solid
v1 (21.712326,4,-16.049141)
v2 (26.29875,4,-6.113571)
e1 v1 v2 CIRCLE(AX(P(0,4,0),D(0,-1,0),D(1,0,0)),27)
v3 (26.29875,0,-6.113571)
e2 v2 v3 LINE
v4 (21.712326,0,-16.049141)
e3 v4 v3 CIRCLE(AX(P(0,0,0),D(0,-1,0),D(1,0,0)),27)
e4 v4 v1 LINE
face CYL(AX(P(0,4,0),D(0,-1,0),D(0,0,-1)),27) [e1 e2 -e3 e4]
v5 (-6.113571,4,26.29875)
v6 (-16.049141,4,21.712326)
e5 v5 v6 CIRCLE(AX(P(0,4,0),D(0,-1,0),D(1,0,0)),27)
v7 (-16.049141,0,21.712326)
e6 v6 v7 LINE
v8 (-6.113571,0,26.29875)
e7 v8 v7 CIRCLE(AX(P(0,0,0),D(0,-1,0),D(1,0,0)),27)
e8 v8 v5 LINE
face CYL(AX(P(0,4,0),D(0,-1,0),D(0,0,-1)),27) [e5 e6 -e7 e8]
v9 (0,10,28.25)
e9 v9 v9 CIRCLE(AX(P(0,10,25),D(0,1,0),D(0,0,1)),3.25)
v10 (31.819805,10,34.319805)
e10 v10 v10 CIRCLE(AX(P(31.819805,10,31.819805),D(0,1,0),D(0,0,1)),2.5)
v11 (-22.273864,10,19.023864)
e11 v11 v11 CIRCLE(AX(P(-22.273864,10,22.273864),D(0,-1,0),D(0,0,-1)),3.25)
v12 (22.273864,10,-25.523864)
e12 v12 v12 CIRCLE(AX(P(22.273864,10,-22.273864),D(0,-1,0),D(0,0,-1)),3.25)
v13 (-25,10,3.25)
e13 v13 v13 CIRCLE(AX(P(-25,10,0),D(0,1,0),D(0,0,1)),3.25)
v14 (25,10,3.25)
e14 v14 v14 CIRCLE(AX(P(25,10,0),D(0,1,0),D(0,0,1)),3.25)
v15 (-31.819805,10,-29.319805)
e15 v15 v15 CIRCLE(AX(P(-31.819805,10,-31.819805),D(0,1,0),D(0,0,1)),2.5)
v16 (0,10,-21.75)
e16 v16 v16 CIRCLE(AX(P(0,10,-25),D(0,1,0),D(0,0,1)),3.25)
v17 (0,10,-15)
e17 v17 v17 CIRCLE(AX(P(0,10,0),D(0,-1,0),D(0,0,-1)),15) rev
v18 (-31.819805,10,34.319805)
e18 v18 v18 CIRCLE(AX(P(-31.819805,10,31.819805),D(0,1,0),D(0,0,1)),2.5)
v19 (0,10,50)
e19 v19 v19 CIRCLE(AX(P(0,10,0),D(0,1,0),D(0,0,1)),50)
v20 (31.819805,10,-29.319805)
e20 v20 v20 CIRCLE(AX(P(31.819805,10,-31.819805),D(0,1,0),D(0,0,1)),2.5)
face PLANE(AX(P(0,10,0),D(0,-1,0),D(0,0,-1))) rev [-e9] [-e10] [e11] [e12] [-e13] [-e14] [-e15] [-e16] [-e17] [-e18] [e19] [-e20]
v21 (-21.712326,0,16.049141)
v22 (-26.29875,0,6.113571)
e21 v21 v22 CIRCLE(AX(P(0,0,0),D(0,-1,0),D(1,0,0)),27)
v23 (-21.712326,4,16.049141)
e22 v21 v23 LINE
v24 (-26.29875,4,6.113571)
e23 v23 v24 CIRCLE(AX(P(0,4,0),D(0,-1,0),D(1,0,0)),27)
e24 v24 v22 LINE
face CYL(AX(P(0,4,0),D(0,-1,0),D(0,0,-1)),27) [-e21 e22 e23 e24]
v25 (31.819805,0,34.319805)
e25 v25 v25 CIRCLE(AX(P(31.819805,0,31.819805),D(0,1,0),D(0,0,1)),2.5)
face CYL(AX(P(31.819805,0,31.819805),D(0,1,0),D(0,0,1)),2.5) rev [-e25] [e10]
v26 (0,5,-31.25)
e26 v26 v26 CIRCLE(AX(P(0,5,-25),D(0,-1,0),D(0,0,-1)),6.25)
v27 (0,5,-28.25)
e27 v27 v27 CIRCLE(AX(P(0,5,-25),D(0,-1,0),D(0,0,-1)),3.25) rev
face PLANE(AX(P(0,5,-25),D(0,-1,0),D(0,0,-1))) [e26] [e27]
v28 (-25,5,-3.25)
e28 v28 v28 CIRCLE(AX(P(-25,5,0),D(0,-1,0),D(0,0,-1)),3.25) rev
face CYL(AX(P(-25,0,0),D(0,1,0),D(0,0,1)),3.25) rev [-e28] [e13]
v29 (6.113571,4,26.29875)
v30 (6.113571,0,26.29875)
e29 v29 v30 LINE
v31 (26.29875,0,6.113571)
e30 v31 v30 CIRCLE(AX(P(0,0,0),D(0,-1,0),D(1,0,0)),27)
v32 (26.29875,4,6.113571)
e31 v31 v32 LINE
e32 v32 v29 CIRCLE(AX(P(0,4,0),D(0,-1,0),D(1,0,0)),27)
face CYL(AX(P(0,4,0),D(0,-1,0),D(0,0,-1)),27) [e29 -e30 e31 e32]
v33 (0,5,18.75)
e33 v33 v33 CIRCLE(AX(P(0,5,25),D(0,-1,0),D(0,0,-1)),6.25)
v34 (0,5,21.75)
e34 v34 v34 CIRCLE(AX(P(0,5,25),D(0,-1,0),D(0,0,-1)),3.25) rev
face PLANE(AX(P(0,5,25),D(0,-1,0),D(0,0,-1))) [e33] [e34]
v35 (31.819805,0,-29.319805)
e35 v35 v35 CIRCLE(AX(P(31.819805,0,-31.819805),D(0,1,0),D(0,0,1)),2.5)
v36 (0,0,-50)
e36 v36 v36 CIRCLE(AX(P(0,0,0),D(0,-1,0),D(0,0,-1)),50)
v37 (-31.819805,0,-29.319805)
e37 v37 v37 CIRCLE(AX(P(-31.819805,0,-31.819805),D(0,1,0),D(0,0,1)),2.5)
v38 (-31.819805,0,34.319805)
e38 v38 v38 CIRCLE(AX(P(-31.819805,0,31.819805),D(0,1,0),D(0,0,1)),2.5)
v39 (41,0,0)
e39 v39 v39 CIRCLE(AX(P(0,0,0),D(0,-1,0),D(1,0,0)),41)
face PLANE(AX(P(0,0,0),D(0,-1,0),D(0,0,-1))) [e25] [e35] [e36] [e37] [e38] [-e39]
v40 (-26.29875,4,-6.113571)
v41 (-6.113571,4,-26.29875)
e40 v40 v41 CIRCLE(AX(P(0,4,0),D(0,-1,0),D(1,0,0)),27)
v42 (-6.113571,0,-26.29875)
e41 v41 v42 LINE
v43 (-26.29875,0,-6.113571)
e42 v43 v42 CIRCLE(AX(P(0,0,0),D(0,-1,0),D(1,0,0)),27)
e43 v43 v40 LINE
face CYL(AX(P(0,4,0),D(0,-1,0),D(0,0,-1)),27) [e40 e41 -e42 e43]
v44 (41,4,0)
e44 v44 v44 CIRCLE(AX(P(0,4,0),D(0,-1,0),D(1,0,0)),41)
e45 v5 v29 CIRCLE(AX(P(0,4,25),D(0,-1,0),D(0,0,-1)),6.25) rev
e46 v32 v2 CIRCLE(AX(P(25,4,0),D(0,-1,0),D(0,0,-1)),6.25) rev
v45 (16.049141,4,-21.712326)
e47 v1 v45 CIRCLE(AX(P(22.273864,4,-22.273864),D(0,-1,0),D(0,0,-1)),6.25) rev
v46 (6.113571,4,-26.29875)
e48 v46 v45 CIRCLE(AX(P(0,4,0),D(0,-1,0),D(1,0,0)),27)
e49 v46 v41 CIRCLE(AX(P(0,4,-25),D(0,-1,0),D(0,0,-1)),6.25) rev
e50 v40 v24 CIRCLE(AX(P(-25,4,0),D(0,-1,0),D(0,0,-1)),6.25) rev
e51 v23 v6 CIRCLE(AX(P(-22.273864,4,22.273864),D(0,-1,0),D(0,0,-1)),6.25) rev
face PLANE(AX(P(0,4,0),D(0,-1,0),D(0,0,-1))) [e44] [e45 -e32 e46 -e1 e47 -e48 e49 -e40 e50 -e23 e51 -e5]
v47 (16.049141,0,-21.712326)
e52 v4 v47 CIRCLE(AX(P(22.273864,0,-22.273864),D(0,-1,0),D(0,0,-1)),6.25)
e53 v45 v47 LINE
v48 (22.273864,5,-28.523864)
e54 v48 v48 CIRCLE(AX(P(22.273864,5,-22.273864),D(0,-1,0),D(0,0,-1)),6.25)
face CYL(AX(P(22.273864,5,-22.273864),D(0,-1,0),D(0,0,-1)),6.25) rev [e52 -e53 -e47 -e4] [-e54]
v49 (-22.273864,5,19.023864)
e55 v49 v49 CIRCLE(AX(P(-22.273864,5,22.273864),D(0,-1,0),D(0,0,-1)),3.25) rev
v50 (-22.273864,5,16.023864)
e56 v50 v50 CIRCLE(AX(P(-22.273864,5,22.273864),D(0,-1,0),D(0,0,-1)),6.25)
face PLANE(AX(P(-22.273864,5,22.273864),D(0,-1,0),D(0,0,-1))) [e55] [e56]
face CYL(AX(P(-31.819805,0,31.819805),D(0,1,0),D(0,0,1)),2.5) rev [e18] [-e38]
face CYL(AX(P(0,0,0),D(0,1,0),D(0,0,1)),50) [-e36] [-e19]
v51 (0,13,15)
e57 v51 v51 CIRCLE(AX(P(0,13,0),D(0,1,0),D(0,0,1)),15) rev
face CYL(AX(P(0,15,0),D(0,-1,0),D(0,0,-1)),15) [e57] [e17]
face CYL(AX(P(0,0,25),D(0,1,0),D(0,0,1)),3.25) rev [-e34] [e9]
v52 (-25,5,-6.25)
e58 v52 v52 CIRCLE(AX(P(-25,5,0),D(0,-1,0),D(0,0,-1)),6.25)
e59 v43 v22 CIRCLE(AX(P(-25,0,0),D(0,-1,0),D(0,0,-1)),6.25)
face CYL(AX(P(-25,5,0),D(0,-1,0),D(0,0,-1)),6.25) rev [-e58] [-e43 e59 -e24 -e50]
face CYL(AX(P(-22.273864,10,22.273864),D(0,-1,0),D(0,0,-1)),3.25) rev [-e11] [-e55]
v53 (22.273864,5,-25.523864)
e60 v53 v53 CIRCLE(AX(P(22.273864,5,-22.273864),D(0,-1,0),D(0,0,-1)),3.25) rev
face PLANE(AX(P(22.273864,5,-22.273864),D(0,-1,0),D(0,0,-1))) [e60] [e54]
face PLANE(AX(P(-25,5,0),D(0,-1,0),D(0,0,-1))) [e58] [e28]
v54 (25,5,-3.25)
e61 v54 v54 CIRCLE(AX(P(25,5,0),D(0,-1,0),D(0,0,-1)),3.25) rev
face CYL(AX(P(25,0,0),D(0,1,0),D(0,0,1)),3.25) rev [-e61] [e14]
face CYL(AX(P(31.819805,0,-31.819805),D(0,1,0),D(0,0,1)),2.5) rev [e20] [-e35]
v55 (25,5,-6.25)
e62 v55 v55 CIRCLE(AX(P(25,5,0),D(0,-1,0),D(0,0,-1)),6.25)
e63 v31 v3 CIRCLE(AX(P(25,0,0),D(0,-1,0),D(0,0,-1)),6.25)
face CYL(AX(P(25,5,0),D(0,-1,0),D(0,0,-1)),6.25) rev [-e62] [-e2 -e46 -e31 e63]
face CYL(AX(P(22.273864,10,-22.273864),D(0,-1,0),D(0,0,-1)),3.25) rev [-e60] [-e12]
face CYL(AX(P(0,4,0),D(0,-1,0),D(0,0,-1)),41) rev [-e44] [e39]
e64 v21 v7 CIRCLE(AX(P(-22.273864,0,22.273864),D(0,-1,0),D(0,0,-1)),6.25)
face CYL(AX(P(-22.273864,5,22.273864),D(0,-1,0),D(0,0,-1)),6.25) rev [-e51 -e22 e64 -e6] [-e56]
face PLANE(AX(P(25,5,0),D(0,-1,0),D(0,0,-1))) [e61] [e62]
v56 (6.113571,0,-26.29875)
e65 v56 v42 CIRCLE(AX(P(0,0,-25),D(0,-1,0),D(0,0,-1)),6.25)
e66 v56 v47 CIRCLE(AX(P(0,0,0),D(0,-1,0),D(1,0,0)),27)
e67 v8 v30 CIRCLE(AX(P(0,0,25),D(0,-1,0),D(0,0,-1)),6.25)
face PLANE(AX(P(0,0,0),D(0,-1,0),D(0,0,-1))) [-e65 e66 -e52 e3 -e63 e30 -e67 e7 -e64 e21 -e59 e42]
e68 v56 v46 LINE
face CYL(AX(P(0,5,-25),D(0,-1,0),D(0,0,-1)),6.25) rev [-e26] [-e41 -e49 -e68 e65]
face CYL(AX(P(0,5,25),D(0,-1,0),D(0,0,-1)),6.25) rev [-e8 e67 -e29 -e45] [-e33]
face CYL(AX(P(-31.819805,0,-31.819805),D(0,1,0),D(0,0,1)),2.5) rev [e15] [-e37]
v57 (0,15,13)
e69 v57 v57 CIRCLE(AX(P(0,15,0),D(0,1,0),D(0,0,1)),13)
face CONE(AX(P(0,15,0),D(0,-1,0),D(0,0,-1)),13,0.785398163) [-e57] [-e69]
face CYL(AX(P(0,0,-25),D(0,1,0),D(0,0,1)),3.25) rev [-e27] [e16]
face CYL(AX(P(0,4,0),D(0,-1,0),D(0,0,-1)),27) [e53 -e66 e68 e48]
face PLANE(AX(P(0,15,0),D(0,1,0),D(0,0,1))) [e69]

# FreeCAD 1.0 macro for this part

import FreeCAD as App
import Part
import Sketcher


def edges_at(feature, points):
    """Names of the edges that pass closest to the given points."""
    edges = feature.Shape.Edges
    near = lambda p: min(range(len(edges)), key=lambda i: edges[i].distToShape(Part.Vertex(*p))[0])
    return sorted({f"Edge{near(p) + 1}" for p in points})


def add_polygon(sketch, points):
    """Adds a closed chain of lines whose ends are joined by coincident constraints."""
    first, n = sketch.GeometryCount, len(points)
    for a, b in zip(points, points[1:] + points[:1]):
        sketch.addGeometry(Part.LineSegment(App.Vector(*a, 0), App.Vector(*b, 0)), False)
    for i in range(n):
        sketch.addConstraint(Sketcher.Constraint("Coincident", first + i, 2, first + (i + 1) % n, 1))

doc = App.newDocument("Part")
params = doc.addObject("Spreadsheet::Sheet", "Params")
for row, (alias, value) in enumerate([
    ("sketch1_width", "100 mm"),
    ("pad1_length", "10 mm"),
    ("sketch2_diameter", "6.5 mm"),
    ("pocket1_length", "10 mm"),
    ("sketch3_diameter", "100 mm"),
    ("pocket2_length", "10 mm"),
    ("sketch4_diameter", "5 mm"),
    ("pocket3_length", "10 mm"),
    ("sketch5_diameter", "6.5 mm"),
    ("pocket4_length", "10 mm"),
    ("sketch6_diameter", "12.5 mm"),
    ("pocket5_length", "5 mm"),
    ("sketch7_diameter", "30 mm"),
    ("pad2_length", "5 mm"),
    ("chamfer_size", "2 mm"),
    ("sketch8_diameter", "82 mm"),
    ("sketch8_diameter2", "54 mm"),
    ("pocket6_length", "4 mm"),
], start=1):
    params.set(f"A{row}", alias)
    params.set(f"B{row}", "=" + value)
    params.setAlias(f"B{row}", alias)

body = doc.addObject("PartDesign::Body", "Body")

sketch1 = doc.addObject("Sketcher::SketchObject", "Sketch")
body.addObject(sketch1)
sketch1.AttachmentSupport = (doc.XZ_Plane, [""])
sketch1.MapMode = "FlatFace"
add_polygon(sketch1, [(-50, -50), (-50, 50), (50, 50), (50, -50)])
sketch1.addConstraint([
    Sketcher.Constraint("Vertical", 0),
    Sketcher.Constraint("Horizontal", 1),
    Sketcher.Constraint("Vertical", 2),
    Sketcher.Constraint("Horizontal", 3),
    Sketcher.Constraint("Symmetric", 0, 2, 2, 2, -1, 1),
    Sketcher.Constraint("Equal", 3, 0),
    Sketcher.Constraint("DistanceX", 1, 1, 1, 2, 100.0),
])
sketch1.setExpression("Constraints[10]", "Params.sketch1_width")
pad1 = doc.addObject("PartDesign::Pad", "Pad")
body.addObject(pad1)
pad1.Profile = sketch1
pad1.setExpression("Length", "Params.pad1_length")
pad1.Reversed = True

sketch2 = doc.addObject("Sketcher::SketchObject", "Sketch001")
body.addObject(sketch2)
sketch2.AttachmentSupport = (doc.XZ_Plane, [""])
sketch2.MapMode = "FlatFace"
sketch2.AttachmentOffset = App.Placement(App.Vector(0, 0, -10), App.Rotation())
sketch2.addGeometry([
    Part.Circle(App.Vector(-25, 0, 0), App.Vector(0, 0, 1), 3.2),
    Part.Circle(App.Vector(0, -25, 0), App.Vector(0, 0, 1), 3.2),
    Part.Circle(App.Vector(25, 0, 0), App.Vector(0, 0, 1), 3.2),
    Part.Circle(App.Vector(0, 25, 0), App.Vector(0, 0, 1), 3.2),
], False)
sketch2.addConstraint([
    Sketcher.Constraint("Equal", 0, 1),
    Sketcher.Constraint("Equal", 1, 2),
    Sketcher.Constraint("Equal", 2, 3),
    Sketcher.Constraint("Symmetric", 0, 3, 2, 3, -1, 1),
    Sketcher.Constraint("Symmetric", 1, 3, 3, 3, -1, 1),
    Sketcher.Constraint("PointOnObject", 0, 3, -1),
    Sketcher.Constraint("PointOnObject", 1, 3, -2),
    Sketcher.Constraint("Diameter", 0, 6.5),
    Sketcher.Constraint("DistanceX", 0, 3, -1, 1, 25.0),
    Sketcher.Constraint("DistanceY", 1, 3, -1, 1, 25.0),
])
sketch2.setExpression("Constraints[7]", "Params.sketch2_diameter")
pocket1 = doc.addObject("PartDesign::Pocket", "Pocket")
body.addObject(pocket1)
pocket1.Profile = sketch2
pocket1.setExpression("Length", "Params.pocket1_length")
pocket1.Reversed = True

sketch3 = doc.addObject("Sketcher::SketchObject", "Sketch002")
body.addObject(sketch3)
sketch3.AttachmentSupport = (doc.XZ_Plane, [""])
sketch3.MapMode = "FlatFace"
sketch3.AttachmentOffset = App.Placement(App.Vector(0, 0, -10), App.Rotation())
add_polygon(sketch3, [(-65, -65), (-65, 65), (65, 65), (65, -65)])
sketch3.addGeometry(Part.Circle(App.Vector(0, 0, 0), App.Vector(0, 0, 1), 50), False)
sketch3.addConstraint([
    Sketcher.Constraint("Vertical", 0),
    Sketcher.Constraint("Horizontal", 1),
    Sketcher.Constraint("Vertical", 2),
    Sketcher.Constraint("Horizontal", 3),
    Sketcher.Constraint("Coincident", 4, 3, -1, 1),
    Sketcher.Constraint("Symmetric", 0, 2, 2, 2, -1, 1),
    Sketcher.Constraint("Equal", 3, 0),
    Sketcher.Constraint("Diameter", 4, 100.0),
    Sketcher.Constraint("DistanceX", 1, 1, 1, 2, 130.354),
])
sketch3.setExpression("Constraints[11]", "Params.sketch3_diameter")
pocket2 = doc.addObject("PartDesign::Pocket", "Pocket001")
body.addObject(pocket2)
pocket2.Profile = sketch3
pocket2.setExpression("Length", "Params.pocket2_length")
pocket2.Reversed = True

sketch4 = doc.addObject("Sketcher::SketchObject", "Sketch003")
body.addObject(sketch4)
sketch4.AttachmentSupport = (doc.XZ_Plane, [""])
sketch4.MapMode = "FlatFace"
sketch4.AttachmentOffset = App.Placement(App.Vector(0, 0, -10), App.Rotation())
sketch4.addGeometry([
    Part.Circle(App.Vector(-31.8, -31.8, 0), App.Vector(0, 0, 1), 2.5),
    Part.Circle(App.Vector(31.8, -31.8, 0), App.Vector(0, 0, 1), 2.5),
    Part.Circle(App.Vector(31.8, 31.8, 0), App.Vector(0, 0, 1), 2.5),
    Part.Circle(App.Vector(-31.8, 31.8, 0), App.Vector(0, 0, 1), 2.5),
], False)
sketch4.addConstraint([
    Sketcher.Constraint("Equal", 0, 1),
    Sketcher.Constraint("Equal", 1, 2),
    Sketcher.Constraint("Equal", 2, 3),
    Sketcher.Constraint("Symmetric", 0, 3, 2, 3, -1, 1),
    Sketcher.Constraint("Symmetric", 1, 3, 3, 3, -1, 1),
    Sketcher.Constraint("Symmetric", 0, 3, 1, 3, -2),
    Sketcher.Constraint("Diameter", 0, 5.0),
    Sketcher.Constraint("DistanceX", 0, 3, 1, 3, 63.63961),
    Sketcher.Constraint("DistanceY", 1, 3, 2, 3, 63.63961),
])
sketch4.setExpression("Constraints[6]", "Params.sketch4_diameter")
pocket3 = doc.addObject("PartDesign::Pocket", "Pocket002")
body.addObject(pocket3)
pocket3.Profile = sketch4
pocket3.setExpression("Length", "Params.pocket3_length")
pocket3.Reversed = True

sketch5 = doc.addObject("Sketcher::SketchObject", "Sketch004")
body.addObject(sketch5)
sketch5.AttachmentSupport = (doc.XZ_Plane, [""])
sketch5.MapMode = "FlatFace"
sketch5.addGeometry([
    Part.Circle(App.Vector(-22.3, 22.3, 0), App.Vector(0, 0, 1), 3.2),
    Part.Circle(App.Vector(22.3, -22.3, 0), App.Vector(0, 0, 1), 3.2),
], False)
sketch5.addConstraint([
    Sketcher.Constraint("Equal", 0, 1),
    Sketcher.Constraint("Symmetric", 0, 3, 1, 3, -1, 1),
    Sketcher.Constraint("Diameter", 0, 6.5),
    Sketcher.Constraint("DistanceX", 0, 3, -1, 1, 22.273864),
    Sketcher.Constraint("DistanceY", -1, 1, 0, 3, 22.273864),
])
sketch5.setExpression("Constraints[2]", "Params.sketch5_diameter")
pocket4 = doc.addObject("PartDesign::Pocket", "Pocket003")
body.addObject(pocket4)
pocket4.Profile = sketch5
pocket4.setExpression("Length", "Params.pocket4_length")

sketch6 = doc.addObject("Sketcher::SketchObject", "Sketch005")
body.addObject(sketch6)
sketch6.AttachmentSupport = (doc.XZ_Plane, [""])
sketch6.MapMode = "FlatFace"
sketch6.addGeometry([
    Part.Circle(App.Vector(25, 0, 0), App.Vector(0, 0, 1), 6),
    Part.Circle(App.Vector(22, -22, 0), App.Vector(0, 0, 1), 6),
    Part.Circle(App.Vector(0, -25, 0), App.Vector(0, 0, 1), 6),
    Part.Circle(App.Vector(-25, 0, 0), App.Vector(0, 0, 1), 6),
    Part.Circle(App.Vector(-22, 22, 0), App.Vector(0, 0, 1), 6),
    Part.Circle(App.Vector(0, 25, 0), App.Vector(0, 0, 1), 6),
], False)
sketch6.addConstraint([
    Sketcher.Constraint("Equal", 0, 1),
    Sketcher.Constraint("Equal", 1, 2),
    Sketcher.Constraint("Equal", 2, 3),
    Sketcher.Constraint("Equal", 3, 4),
    Sketcher.Constraint("Equal", 4, 5),
    Sketcher.Constraint("Symmetric", 0, 3, 3, 3, -1, 1),
    Sketcher.Constraint("Symmetric", 1, 3, 4, 3, -1, 1),
    Sketcher.Constraint("Symmetric", 2, 3, 5, 3, -1, 1),
    Sketcher.Constraint("PointOnObject", 0, 3, -1),
    Sketcher.Constraint("PointOnObject", 2, 3, -2),
    Sketcher.Constraint("Diameter", 0, 12.5),
    Sketcher.Constraint("DistanceX", -1, 1, 0, 3, 25.0),
    Sketcher.Constraint("DistanceY", 2, 3, -1, 1, 25.0),
    Sketcher.Constraint("DistanceX", -1, 1, 1, 3, 22.273864),
    Sketcher.Constraint("DistanceY", 1, 3, -1, 1, 22.273864),
])
sketch6.setExpression("Constraints[10]", "Params.sketch6_diameter")
pocket5 = doc.addObject("PartDesign::Pocket", "Pocket004")
body.addObject(pocket5)
pocket5.Profile = sketch6
pocket5.setExpression("Length", "Params.pocket5_length")

sketch7 = doc.addObject("Sketcher::SketchObject", "Sketch006")
body.addObject(sketch7)
sketch7.AttachmentSupport = (doc.XZ_Plane, [""])
sketch7.MapMode = "FlatFace"
sketch7.AttachmentOffset = App.Placement(App.Vector(0, 0, -10), App.Rotation())
sketch7.addGeometry(Part.Circle(App.Vector(0, 0, 0), App.Vector(0, 0, 1), 15), False)
sketch7.addConstraint([
    Sketcher.Constraint("Coincident", 0, 3, -1, 1),
    Sketcher.Constraint("Diameter", 0, 30.0),
])
sketch7.setExpression("Constraints[1]", "Params.sketch7_diameter")
pad2 = doc.addObject("PartDesign::Pad", "Pad001")
body.addObject(pad2)
pad2.Profile = sketch7
pad2.setExpression("Length", "Params.pad2_length")
pad2.Reversed = True
doc.recompute()

chamfer = doc.addObject("PartDesign::Chamfer", "Chamfer")
body.addObject(chamfer)
chamfer.Base = (pad2, edges_at(pad2, [(0, 15, 15)]))
chamfer.setExpression("Size", "Params.chamfer_size")

sketch8 = doc.addObject("Sketcher::SketchObject", "Sketch007")
body.addObject(sketch8)
sketch8.AttachmentSupport = (doc.XZ_Plane, [""])
sketch8.MapMode = "FlatFace"
sketch8.addGeometry([
    Part.Circle(App.Vector(0, 0, 0), App.Vector(0, 0, 1), 41),
    Part.Circle(App.Vector(0, 0, 0), App.Vector(0, 0, 1), 27),
], False)
sketch8.addConstraint([
    Sketcher.Constraint("Coincident", 0, 3, -1, 1),
    Sketcher.Constraint("Coincident", 1, 3, -1, 1),
    Sketcher.Constraint("Diameter", 0, 82.0),
    Sketcher.Constraint("Diameter", 1, 54.0),
])
sketch8.setExpression("Constraints[2]", "Params.sketch8_diameter")
sketch8.setExpression("Constraints[3]", "Params.sketch8_diameter2")
pocket6 = doc.addObject("PartDesign::Pocket", "Pocket005")
body.addObject(pocket6)
pocket6.Profile = sketch8
pocket6.setExpression("Length", "Params.pocket6_length")

doc.recompute()
